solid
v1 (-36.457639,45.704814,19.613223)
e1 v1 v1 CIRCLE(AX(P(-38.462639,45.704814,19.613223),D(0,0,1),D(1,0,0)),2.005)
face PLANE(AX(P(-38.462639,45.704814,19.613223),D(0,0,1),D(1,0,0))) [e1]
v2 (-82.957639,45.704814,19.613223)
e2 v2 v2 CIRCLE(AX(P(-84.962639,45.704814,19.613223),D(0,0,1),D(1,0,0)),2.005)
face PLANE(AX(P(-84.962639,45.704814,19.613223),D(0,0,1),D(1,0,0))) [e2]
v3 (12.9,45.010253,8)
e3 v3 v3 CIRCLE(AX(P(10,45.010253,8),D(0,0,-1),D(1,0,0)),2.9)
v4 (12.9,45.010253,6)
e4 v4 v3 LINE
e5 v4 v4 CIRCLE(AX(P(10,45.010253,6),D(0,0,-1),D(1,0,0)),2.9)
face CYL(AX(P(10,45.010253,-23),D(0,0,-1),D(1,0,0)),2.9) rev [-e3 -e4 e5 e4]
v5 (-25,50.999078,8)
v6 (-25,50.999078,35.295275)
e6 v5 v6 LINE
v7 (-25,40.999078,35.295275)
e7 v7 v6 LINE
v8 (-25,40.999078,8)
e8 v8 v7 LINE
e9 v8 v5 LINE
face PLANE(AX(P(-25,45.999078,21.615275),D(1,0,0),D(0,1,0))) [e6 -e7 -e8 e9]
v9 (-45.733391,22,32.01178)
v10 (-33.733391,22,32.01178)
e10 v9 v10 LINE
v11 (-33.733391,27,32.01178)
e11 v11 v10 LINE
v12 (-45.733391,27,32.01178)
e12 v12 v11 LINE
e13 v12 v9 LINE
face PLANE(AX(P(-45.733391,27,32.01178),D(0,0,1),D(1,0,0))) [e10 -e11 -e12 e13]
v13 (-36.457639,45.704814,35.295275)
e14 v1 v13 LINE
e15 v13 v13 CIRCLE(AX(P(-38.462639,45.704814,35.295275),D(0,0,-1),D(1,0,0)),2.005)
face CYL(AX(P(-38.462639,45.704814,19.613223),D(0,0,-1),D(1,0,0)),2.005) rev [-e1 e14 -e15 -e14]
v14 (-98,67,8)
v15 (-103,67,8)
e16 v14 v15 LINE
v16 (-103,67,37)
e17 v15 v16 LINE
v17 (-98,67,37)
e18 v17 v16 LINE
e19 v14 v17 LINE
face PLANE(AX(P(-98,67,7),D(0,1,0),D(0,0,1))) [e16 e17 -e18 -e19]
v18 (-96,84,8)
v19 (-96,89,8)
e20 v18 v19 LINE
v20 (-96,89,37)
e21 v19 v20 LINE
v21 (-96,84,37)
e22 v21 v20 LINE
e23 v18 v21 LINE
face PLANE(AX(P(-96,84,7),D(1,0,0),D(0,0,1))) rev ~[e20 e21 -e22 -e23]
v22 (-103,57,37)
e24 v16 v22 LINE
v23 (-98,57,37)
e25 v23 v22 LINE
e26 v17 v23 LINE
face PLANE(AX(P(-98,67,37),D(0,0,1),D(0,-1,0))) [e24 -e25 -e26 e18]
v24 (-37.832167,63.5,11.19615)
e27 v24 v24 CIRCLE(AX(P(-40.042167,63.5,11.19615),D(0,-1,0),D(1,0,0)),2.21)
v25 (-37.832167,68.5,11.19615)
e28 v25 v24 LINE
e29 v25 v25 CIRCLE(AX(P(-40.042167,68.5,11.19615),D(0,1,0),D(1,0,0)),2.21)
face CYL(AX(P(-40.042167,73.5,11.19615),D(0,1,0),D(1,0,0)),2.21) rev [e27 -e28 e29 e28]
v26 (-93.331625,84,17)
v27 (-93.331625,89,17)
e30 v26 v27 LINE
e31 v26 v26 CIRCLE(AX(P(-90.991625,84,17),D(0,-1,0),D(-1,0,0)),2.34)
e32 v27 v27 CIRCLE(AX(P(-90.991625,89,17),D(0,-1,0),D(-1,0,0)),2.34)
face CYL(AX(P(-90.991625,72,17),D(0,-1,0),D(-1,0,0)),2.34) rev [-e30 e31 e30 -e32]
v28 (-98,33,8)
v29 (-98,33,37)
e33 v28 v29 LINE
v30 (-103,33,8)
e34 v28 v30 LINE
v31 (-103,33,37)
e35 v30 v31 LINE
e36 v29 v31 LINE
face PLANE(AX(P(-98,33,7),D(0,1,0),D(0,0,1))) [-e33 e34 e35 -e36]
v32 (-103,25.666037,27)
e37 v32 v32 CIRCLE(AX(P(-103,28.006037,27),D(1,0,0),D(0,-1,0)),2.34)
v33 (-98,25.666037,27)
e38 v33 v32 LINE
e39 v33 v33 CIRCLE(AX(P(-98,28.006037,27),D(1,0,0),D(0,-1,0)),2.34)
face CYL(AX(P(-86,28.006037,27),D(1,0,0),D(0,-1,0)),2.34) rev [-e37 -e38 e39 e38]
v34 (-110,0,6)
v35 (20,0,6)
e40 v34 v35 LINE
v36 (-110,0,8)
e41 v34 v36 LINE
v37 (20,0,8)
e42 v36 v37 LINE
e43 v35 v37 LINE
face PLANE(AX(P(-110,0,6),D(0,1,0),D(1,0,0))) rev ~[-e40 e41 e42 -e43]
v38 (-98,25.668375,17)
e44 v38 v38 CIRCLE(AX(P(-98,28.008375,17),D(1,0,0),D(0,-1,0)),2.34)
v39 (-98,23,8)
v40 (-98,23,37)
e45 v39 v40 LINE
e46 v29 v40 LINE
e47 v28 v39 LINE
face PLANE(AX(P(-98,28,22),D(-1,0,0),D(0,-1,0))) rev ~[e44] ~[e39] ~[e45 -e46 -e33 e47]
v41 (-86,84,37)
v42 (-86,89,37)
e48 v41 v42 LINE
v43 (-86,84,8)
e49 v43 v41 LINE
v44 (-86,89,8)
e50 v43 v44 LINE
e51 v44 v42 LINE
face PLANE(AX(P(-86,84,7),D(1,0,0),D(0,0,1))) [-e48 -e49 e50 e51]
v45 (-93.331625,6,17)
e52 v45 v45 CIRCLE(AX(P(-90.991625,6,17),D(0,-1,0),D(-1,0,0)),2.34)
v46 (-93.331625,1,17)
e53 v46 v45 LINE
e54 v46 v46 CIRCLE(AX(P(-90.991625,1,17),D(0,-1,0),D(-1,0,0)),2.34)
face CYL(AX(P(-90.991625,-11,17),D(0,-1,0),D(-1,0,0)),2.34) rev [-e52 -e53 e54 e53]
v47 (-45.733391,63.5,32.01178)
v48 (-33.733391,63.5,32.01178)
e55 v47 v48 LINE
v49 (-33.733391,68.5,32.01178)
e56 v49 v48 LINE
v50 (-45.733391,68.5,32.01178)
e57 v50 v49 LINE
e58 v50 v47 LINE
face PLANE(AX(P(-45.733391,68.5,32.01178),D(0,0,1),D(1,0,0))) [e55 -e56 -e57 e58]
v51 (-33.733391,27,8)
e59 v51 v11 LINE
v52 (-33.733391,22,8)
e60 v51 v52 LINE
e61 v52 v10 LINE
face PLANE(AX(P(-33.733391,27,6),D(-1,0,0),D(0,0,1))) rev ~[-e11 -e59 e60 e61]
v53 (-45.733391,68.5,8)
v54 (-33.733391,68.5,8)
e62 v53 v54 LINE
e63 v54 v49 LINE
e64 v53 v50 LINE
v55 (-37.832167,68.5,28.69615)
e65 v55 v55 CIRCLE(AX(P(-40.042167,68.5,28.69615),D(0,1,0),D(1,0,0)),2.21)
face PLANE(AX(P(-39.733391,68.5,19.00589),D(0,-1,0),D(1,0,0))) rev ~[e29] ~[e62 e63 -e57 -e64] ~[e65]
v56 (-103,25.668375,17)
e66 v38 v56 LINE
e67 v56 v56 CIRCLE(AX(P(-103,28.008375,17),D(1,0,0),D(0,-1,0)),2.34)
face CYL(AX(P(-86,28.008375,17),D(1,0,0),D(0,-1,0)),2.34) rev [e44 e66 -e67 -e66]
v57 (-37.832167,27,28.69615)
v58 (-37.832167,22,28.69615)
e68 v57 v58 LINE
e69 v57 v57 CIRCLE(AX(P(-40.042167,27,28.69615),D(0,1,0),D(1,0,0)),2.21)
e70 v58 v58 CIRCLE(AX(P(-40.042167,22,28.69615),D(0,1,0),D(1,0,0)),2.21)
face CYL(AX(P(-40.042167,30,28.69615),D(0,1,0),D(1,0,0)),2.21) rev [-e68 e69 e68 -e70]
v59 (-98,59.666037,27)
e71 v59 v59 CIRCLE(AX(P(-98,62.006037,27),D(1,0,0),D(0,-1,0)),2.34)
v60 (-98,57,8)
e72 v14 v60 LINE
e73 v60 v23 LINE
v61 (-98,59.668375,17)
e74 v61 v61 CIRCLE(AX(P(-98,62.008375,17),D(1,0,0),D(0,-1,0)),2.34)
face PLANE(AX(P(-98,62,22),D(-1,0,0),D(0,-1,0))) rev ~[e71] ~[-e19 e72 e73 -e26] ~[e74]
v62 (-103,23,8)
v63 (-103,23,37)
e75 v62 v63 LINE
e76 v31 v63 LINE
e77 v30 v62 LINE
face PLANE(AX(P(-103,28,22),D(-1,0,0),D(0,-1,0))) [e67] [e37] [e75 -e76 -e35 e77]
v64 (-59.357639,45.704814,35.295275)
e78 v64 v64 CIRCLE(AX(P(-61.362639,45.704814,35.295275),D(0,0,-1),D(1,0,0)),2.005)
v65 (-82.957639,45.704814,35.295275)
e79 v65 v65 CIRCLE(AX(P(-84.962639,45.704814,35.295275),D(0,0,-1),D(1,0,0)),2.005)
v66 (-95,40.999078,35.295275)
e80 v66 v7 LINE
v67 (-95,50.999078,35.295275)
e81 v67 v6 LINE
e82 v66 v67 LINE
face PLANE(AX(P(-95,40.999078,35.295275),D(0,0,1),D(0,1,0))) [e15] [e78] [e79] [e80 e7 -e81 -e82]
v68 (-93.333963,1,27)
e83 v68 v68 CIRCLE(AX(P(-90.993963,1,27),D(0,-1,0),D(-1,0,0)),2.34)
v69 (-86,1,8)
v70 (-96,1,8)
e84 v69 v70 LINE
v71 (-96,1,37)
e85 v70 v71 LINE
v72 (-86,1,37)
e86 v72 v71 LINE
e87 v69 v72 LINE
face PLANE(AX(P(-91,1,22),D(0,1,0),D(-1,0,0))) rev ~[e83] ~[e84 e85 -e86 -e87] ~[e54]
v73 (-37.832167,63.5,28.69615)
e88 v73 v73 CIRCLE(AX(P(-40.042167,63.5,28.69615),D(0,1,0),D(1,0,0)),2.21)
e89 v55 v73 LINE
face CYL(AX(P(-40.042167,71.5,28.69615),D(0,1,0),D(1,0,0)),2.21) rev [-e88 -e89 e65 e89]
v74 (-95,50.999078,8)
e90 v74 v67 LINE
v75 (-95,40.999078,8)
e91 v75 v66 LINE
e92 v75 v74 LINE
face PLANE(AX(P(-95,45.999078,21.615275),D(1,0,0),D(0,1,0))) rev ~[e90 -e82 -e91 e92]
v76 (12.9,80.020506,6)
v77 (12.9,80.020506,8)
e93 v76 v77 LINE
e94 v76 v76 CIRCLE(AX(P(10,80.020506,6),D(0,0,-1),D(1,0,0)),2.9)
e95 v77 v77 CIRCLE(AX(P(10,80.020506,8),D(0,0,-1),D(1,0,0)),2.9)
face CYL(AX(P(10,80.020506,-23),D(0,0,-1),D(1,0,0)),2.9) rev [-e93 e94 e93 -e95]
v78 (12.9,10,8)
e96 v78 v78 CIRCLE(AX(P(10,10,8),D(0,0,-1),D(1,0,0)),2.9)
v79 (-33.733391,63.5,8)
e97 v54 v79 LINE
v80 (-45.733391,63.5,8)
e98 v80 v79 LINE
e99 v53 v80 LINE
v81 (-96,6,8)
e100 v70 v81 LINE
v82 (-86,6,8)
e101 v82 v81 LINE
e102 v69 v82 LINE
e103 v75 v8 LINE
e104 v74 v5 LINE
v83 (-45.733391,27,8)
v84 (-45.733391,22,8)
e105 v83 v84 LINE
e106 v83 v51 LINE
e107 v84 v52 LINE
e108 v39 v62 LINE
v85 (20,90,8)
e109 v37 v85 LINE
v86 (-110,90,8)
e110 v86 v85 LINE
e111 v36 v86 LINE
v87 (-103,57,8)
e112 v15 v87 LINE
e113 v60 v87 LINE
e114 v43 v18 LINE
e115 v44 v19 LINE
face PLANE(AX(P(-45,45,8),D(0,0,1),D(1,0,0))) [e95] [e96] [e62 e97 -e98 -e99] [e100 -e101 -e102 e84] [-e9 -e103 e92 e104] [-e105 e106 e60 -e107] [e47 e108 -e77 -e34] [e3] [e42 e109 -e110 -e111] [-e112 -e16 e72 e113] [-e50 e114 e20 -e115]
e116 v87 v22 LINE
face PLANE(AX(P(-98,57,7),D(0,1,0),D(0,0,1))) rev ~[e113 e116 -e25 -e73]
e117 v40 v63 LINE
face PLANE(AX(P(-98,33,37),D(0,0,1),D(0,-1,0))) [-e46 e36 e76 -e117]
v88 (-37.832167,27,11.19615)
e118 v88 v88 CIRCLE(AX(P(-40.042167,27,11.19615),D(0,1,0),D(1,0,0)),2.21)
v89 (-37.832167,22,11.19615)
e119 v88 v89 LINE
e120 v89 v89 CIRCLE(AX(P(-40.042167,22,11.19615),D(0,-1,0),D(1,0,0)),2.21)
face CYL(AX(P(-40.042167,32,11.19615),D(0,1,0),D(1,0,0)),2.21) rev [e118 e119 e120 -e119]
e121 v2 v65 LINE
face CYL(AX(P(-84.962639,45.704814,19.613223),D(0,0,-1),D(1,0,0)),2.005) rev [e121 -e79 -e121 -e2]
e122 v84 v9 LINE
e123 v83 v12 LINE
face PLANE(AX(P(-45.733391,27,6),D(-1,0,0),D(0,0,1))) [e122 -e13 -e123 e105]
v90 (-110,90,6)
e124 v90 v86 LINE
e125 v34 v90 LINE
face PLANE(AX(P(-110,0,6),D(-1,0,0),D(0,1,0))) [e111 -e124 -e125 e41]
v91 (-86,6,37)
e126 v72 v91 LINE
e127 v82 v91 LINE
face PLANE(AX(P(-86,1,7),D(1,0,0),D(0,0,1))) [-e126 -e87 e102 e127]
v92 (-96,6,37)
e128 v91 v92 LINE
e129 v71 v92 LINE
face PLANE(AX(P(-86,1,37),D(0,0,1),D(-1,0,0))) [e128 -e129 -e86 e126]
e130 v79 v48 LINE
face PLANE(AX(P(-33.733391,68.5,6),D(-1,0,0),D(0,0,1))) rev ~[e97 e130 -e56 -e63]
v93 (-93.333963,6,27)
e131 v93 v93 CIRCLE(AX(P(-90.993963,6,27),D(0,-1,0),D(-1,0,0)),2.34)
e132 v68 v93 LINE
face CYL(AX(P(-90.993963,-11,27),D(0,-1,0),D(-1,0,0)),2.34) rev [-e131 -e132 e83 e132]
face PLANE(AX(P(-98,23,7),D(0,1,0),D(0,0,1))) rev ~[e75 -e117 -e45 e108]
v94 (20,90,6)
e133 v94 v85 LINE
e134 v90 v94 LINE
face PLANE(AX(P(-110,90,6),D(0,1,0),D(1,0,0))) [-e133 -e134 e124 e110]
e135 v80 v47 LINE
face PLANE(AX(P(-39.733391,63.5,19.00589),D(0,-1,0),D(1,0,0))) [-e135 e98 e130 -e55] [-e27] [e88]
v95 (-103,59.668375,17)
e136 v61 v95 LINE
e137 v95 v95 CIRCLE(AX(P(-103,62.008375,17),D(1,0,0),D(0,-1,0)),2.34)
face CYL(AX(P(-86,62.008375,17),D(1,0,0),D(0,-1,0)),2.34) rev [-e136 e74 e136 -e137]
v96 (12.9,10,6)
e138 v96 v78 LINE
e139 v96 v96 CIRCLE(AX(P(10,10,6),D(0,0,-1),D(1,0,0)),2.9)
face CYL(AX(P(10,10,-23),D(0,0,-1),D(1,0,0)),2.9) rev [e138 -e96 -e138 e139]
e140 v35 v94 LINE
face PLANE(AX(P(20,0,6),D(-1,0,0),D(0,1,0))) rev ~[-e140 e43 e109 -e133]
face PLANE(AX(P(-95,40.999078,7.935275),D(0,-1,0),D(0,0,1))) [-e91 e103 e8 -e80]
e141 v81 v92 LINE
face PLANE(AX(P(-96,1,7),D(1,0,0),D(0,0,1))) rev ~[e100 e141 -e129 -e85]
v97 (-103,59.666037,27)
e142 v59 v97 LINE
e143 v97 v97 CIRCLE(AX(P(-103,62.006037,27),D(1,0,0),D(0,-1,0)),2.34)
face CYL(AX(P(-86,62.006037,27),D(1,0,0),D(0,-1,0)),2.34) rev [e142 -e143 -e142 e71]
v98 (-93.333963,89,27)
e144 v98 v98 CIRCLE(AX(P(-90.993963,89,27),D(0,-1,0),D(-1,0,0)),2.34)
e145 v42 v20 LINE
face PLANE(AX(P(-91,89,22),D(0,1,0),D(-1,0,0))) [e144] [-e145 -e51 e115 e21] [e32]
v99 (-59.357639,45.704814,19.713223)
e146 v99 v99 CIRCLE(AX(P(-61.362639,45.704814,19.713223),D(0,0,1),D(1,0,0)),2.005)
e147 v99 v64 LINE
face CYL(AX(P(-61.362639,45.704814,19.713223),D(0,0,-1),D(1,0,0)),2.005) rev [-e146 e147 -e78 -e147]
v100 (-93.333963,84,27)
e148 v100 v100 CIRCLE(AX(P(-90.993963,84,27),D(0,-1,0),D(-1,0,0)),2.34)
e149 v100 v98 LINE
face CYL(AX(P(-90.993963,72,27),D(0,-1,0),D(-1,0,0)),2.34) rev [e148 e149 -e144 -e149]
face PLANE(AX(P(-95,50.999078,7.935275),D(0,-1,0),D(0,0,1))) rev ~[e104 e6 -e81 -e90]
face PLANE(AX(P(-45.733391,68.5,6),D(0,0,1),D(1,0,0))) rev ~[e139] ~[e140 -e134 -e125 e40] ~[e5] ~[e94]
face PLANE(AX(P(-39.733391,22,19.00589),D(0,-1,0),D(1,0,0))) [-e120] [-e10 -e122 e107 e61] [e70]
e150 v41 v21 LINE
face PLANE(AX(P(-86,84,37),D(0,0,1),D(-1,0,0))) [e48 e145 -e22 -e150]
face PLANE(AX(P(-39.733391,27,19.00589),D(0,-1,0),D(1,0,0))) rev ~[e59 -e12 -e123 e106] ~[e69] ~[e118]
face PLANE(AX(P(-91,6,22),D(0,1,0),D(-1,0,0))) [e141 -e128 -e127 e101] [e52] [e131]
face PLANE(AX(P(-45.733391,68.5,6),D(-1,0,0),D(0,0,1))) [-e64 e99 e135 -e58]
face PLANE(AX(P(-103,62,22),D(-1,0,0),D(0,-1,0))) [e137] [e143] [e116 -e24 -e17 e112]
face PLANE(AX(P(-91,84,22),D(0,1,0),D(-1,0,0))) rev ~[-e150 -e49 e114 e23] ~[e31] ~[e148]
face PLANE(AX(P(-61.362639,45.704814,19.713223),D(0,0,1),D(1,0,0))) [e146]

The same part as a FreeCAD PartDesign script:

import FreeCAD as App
import Part
import Sketcher
from FreeCAD import Vector


def add_polygon(sketch, points):
    """Adds a closed chain of lines whose ends are joined by coincident constraints."""
    first, n = sketch.GeometryCount, len(points)
    for a, b in zip(points, points[1:] + points[:1]):
        sketch.addGeometry(Part.LineSegment(App.Vector(*a, 0), App.Vector(*b, 0)), False)
    for i in range(n):
        sketch.addConstraint(Sketcher.Constraint("Coincident", first + i, 2, first + (i + 1) % n, 1))

doc = App.newDocument("Part")
params = doc.addObject("Spreadsheet::Sheet", "Params")
for row, (alias, value) in enumerate([
    ("sketch1_diameter", "4.68 mm"),
    ("pad1_length", "20 mm"),
    ("sketch2_width", "10 mm"),
    ("sketch2_height", "30 mm"),
    ("pad2_length", "5 mm"),
    ("sketch3_diameter", "4.68 mm"),
    ("pad3_length", "20 mm"),
    ("sketch4_width", "10 mm"),
    ("sketch4_height", "30 mm"),
    ("pad4_length", "5 mm"),
    ("sketch5_diameter", "4.42 mm"),
    ("pad5_length", "10 mm"),
    ("sketch6_diameter", "4.42 mm"),
    ("pad6_length", "10 mm"),
    ("sketch7_width", "12 mm"),
    ("pad7_length", "5 mm"),
    ("sketch8_diameter", "4.42 mm"),
    ("pad8_length", "10 mm"),
    ("sketch9_diameter", "4.42 mm"),
    ("pad9_length", "10 mm"),
    ("sketch10_width", "12 mm"),
    ("pad10_length", "5 mm"),
    ("sketch11_diameter", "4.68 mm"),
    ("pad11_length", "20 mm"),
    ("sketch12_width", "10 mm"),
    ("sketch12_height", "30 mm"),
    ("pad12_length", "5 mm"),
    ("sketch13_diameter", "4.68 mm"),
    ("pad13_length", "20 mm"),
    ("sketch14_width", "10 mm"),
    ("sketch14_height", "30 mm"),
    ("pad14_length", "5 mm"),
    ("sketch15_diameter", "4.01 mm"),
    ("pad15_length", "20 mm"),
    ("sketch16_diameter", "4.01 mm"),
    ("pad16_length", "20 mm"),
    ("sketch17_diameter", "4.01 mm"),
    ("pad17_length", "20 mm"),
    ("sketch18_width", "10 mm"),
    ("sketch18_height", "27.36 mm"),
    ("pad18_length", "70 mm"),
    ("sketch19_diameter", "5.8 mm"),
    ("pad19_length", "50 mm"),
    ("sketch20_width", "130 mm"),
    ("sketch20_height", "90 mm"),
    ("pad20_length", "2 mm"),
], start=1):
    params.set(f"A{row}", alias)
    params.set(f"B{row}", "=" + value)
    params.setAlias(f"B{row}", alias)

body = doc.addObject("PartDesign::Body", "Body")
body.AllowCompound = True

# Sketch on YZ plane
sketch1 = body.newObject("Sketcher::SketchObject", "Sketch")
sketch1.AttachmentSupport = (doc.getObject("YZ_Plane"), [""])
sketch1.MapMode = "FlatFace"
sketch1.AttachmentOffset = App.Placement(Vector(0, 0, -101), App.Rotation())
sketch1.addGeometry([
    Part.Circle(Vector(28.006037, 30, 0), Vector(0, 0, 1), 2.34),
    Part.Circle(Vector(28.008375, 20, 0), Vector(0, 0, 1), 2.34),
], False)
sketch1.addConstraint([
    Sketcher.Constraint("Equal", 0, 1),
    Sketcher.Constraint("Diameter", 0, 4.68),
    Sketcher.Constraint("DistanceY", -1, 1, 0, 3, 30.0),
    Sketcher.Constraint("DistanceY", -1, 1, 1, 3, 20.0),
    Sketcher.Constraint("DistanceX", 0, 3, 1, 3, 0.002338),
    Sketcher.Constraint("DistanceX", -1, 1, 0, 3, 28.006037),
])
sketch1.setExpression("Constraints[1]", "Params.sketch1_diameter")
pad1 = body.newObject("PartDesign::Pad", "Pad")
pad1.Profile = sketch1
pad1.setExpression("Length", "Params.pad1_length")
pad1.Reversed = True
body2 = doc.addObject("PartDesign::Body", "Body001")
body2.AllowCompound = True
doc.recompute()

body.Placement = App.Placement(Vector(17, 0, 0), App.Rotation(Vector(0, 0, 1), 0))
boolean = body2.newObject("PartDesign::Boolean", "Boolean")
boolean.Type = "Fuse"
boolean.addObjects([body])
body3 = doc.addObject("PartDesign::Body", "Body002")

# Sketch on XZ plane
sketch2 = body3.newObject("Sketcher::SketchObject", "Sketch001")
sketch2.AttachmentSupport = (doc.getObject("XZ_Plane002"), [""])
sketch2.MapMode = "FlatFace"
add_polygon(sketch2, [(-140, 40), (-140, 10), (-130, 10), (-130, 40)])  # lines 0-3
sketch2.addConstraint([
    Sketcher.Constraint("Vertical", 0),
    Sketcher.Constraint("Horizontal", 1),
    Sketcher.Constraint("Vertical", 2),
    Sketcher.Constraint("Horizontal", 3),
    Sketcher.Constraint("DistanceX", 1, 1, 1, 2, 10.0),
    Sketcher.Constraint("DistanceY", 0, 2, 0, 1, 30.0),
    Sketcher.Constraint("DistanceX", 0, 2, -1, 1, 140.0),
    Sketcher.Constraint("DistanceY", -1, 1, 0, 2, 10.0),
])
sketch2.setExpression("Constraints[8]", "Params.sketch2_width")
sketch2.setExpression("Constraints[9]", "Params.sketch2_height")
pad2 = body3.newObject("PartDesign::Pad", "Pad001")
pad2.Profile = sketch2
pad2.setExpression("Length", "Params.pad2_length")
body4 = doc.addObject("PartDesign::Body", "Body003")
doc.recompute()

body3.Placement = App.Placement(Vector(-96, -107, 0), App.Rotation(Vector(0, 0, -1), 90))
boolean2 = body4.newObject("PartDesign::Boolean", "Boolean001")
boolean2.Type = "Fuse"
boolean2.addObjects([body3])
doc.recompute()

boolean3 = body4.newObject("PartDesign::Boolean", "Boolean002")
boolean3.Type = "Cut"
boolean3.addObjects([body2])
body5 = doc.addObject("PartDesign::Body", "Body004")
doc.recompute()

body4.Placement = App.Placement(Vector(-119, -12, -3), App.Rotation(Vector(0, 0, -1), 90))
boolean4 = body5.newObject("PartDesign::Boolean", "Boolean003")
boolean4.Type = "Fuse"
boolean4.addObjects([body4])
body6 = doc.addObject("PartDesign::Body", "Body005")
body6.AllowCompound = True

# Sketch on YZ plane
sketch3 = body6.newObject("Sketcher::SketchObject", "Sketch002")
sketch3.AttachmentSupport = (doc.getObject("YZ_Plane005"), [""])
sketch3.MapMode = "FlatFace"
sketch3.AttachmentOffset = App.Placement(Vector(0, 0, -101), App.Rotation())
sketch3.addGeometry([
    Part.Circle(Vector(28.006037, 30, 0), Vector(0, 0, 1), 2.34),
    Part.Circle(Vector(28.008375, 20, 0), Vector(0, 0, 1), 2.34),
], False)
sketch3.addConstraint([
    Sketcher.Constraint("Equal", 0, 1),
    Sketcher.Constraint("Diameter", 0, 4.68),
    Sketcher.Constraint("DistanceY", -1, 1, 0, 3, 30.0),
    Sketcher.Constraint("DistanceY", -1, 1, 1, 3, 20.0),
    Sketcher.Constraint("DistanceX", 0, 3, 1, 3, 0.002338),
    Sketcher.Constraint("DistanceX", -1, 1, 0, 3, 28.006037),
])
sketch3.setExpression("Constraints[1]", "Params.sketch3_diameter")
pad3 = body6.newObject("PartDesign::Pad", "Pad002")
pad3.Profile = sketch3
pad3.setExpression("Length", "Params.pad3_length")
pad3.Reversed = True
body7 = doc.addObject("PartDesign::Body", "Body006")
body7.AllowCompound = True
doc.recompute()

body6.Placement = App.Placement(Vector(17, 0, 0), App.Rotation(Vector(0, 0, 1), 0))
boolean5 = body7.newObject("PartDesign::Boolean", "Boolean004")
boolean5.Type = "Fuse"
boolean5.addObjects([body6])
body8 = doc.addObject("PartDesign::Body", "Body007")

# Sketch on XZ plane
sketch4 = body8.newObject("Sketcher::SketchObject", "Sketch003")
sketch4.AttachmentSupport = (doc.getObject("XZ_Plane007"), [""])
sketch4.MapMode = "FlatFace"
add_polygon(sketch4, [(-140, 40), (-140, 10), (-130, 10), (-130, 40)])  # lines 0-3
sketch4.addConstraint([
    Sketcher.Constraint("Vertical", 0),
    Sketcher.Constraint("Horizontal", 1),
    Sketcher.Constraint("Vertical", 2),
    Sketcher.Constraint("Horizontal", 3),
    Sketcher.Constraint("DistanceX", 1, 1, 1, 2, 10.0),
    Sketcher.Constraint("DistanceY", 0, 2, 0, 1, 30.0),
    Sketcher.Constraint("DistanceX", 0, 2, -1, 1, 140.0),
    Sketcher.Constraint("DistanceY", -1, 1, 0, 2, 10.0),
])
sketch4.setExpression("Constraints[8]", "Params.sketch4_width")
sketch4.setExpression("Constraints[9]", "Params.sketch4_height")
pad4 = body8.newObject("PartDesign::Pad", "Pad003")
pad4.Profile = sketch4
pad4.setExpression("Length", "Params.pad4_length")
body9 = doc.addObject("PartDesign::Body", "Body008")
doc.recompute()

body8.Placement = App.Placement(Vector(-96, -107, 0), App.Rotation(Vector(0, 0, -1), 90))
boolean6 = body9.newObject("PartDesign::Boolean", "Boolean005")
boolean6.Type = "Fuse"
boolean6.addObjects([body8])
doc.recompute()

boolean7 = body9.newObject("PartDesign::Boolean", "Boolean006")
boolean7.Type = "Cut"
boolean7.addObjects([body7])
body10 = doc.addObject("PartDesign::Body", "Body009")
doc.recompute()

body9.Placement = App.Placement(Vector(-2, 34, -3), App.Rotation(Vector(0, 0, 1), 0))
boolean8 = body10.newObject("PartDesign::Boolean", "Boolean007")
boolean8.Type = "Fuse"
boolean8.addObjects([body9])
body11 = doc.addObject("PartDesign::Body", "Body010")

# Sketch on XZ plane
sketch5 = body11.newObject("Sketcher::SketchObject", "Sketch004")
sketch5.AttachmentSupport = (doc.getObject("XZ_Plane010"), [""])
sketch5.MapMode = "FlatFace"
sketch5.addGeometry(Part.Circle(Vector(-30.242167, 20.01615, 0), Vector(0, 0, 1), 2.21), False)
sketch5.addConstraint([
    Sketcher.Constraint("Diameter", 0, 4.42),
    Sketcher.Constraint("DistanceY", -1, 1, 0, 3, 20.01615),
    Sketcher.Constraint("DistanceX", 0, 3, -1, 1, 30.242167),
])
sketch5.setExpression("Constraints[0]", "Params.sketch5_diameter")
pad5 = body11.newObject("PartDesign::Pad", "Pad004")
pad5.Profile = sketch5
pad5.setExpression("Length", "Params.pad5_length")
body12 = doc.addObject("PartDesign::Body", "Body011")
doc.recompute()

body11.Placement = App.Placement(Vector(-9.8, 5, -14.82), App.Rotation(Vector(0, 0, 1), 0))
boolean9 = body12.newObject("PartDesign::Boolean", "Boolean008")
boolean9.Type = "Fuse"
boolean9.addObjects([body11])
body13 = doc.addObject("PartDesign::Body", "Body012")

# Sketch on XZ plane
sketch6 = body13.newObject("Sketcher::SketchObject", "Sketch005")
sketch6.AttachmentSupport = (doc.getObject("XZ_Plane012"), [""])
sketch6.MapMode = "FlatFace"
sketch6.addGeometry(Part.Circle(Vector(-30.242167, 20.01615, 0), Vector(0, 0, 1), 2.21), False)
sketch6.addConstraint([
    Sketcher.Constraint("Diameter", 0, 4.42),
    Sketcher.Constraint("DistanceY", -1, 1, 0, 3, 20.01615),
    Sketcher.Constraint("DistanceX", 0, 3, -1, 1, 30.242167),
])
sketch6.setExpression("Constraints[0]", "Params.sketch6_diameter")
pad6 = body13.newObject("PartDesign::Pad", "Pad005")
pad6.Profile = sketch6
pad6.setExpression("Length", "Params.pad6_length")
body14 = doc.addObject("PartDesign::Body", "Body013")
doc.recompute()

body13.Placement = App.Placement(Vector(-9.8, 3, 2.68), App.Rotation(Vector(0, 0, 1), 0))
boolean10 = body14.newObject("PartDesign::Boolean", "Boolean009")
boolean10.Type = "Fuse"
boolean10.addObjects([body13])
body15 = doc.addObject("PartDesign::Body", "Body014")

# Sketch on XZ plane
sketch7 = body15.newObject("Sketcher::SketchObject", "Sketch006")
sketch7.AttachmentSupport = (doc.getObject("XZ_Plane014"), [""])
sketch7.MapMode = "FlatFace"
add_polygon(sketch7, [(-45.733391, 26.01178), (-45.733391, 0), (-33.733391, 0), (-33.733391, 26.01178)])  # lines 0-3
sketch7.addConstraint([
    Sketcher.Constraint("Vertical", 0),
    Sketcher.Constraint("Horizontal", 1),
    Sketcher.Constraint("Vertical", 2),
    Sketcher.Constraint("Horizontal", 3),
    Sketcher.Constraint("PointOnObject", 0, 2, -1),
    Sketcher.Constraint("DistanceX", 1, 1, 1, 2, 12.0),
    Sketcher.Constraint("DistanceY", 0, 2, 0, 1, 26.01178),
    Sketcher.Constraint("DistanceX", 0, 2, -1, 1, 45.733391),
])
sketch7.setExpression("Constraints[9]", "Params.sketch7_width")
pad7 = body15.newObject("PartDesign::Pad", "Pad006")
pad7.Profile = sketch7
pad7.setExpression("Length", "Params.pad7_length")
doc.recompute()

boolean11 = body15.newObject("PartDesign::Boolean", "Boolean010")
boolean11.Type = "Cut"
boolean11.addObjects([body14])
doc.recompute()

boolean12 = body15.newObject("PartDesign::Boolean", "Boolean011")
boolean12.Type = "Cut"
boolean12.addObjects([body12])
body16 = doc.addObject("PartDesign::Body", "Body015")
doc.recompute()

body15.Placement = App.Placement(Vector(0, 68.5, 6), App.Rotation(Vector(0, 0, 1), 0))
boolean13 = body16.newObject("PartDesign::Boolean", "Boolean012")
boolean13.Type = "Fuse"
boolean13.addObjects([body15])
body17 = doc.addObject("PartDesign::Body", "Body016")

# Sketch on XZ plane
sketch8 = body17.newObject("Sketcher::SketchObject", "Sketch007")
sketch8.AttachmentSupport = (doc.getObject("XZ_Plane016"), [""])
sketch8.MapMode = "FlatFace"
sketch8.addGeometry(Part.Circle(Vector(-30.242167, 20.01615, 0), Vector(0, 0, 1), 2.21), False)
sketch8.addConstraint([
    Sketcher.Constraint("Diameter", 0, 4.42),
    Sketcher.Constraint("DistanceY", -1, 1, 0, 3, 20.01615),
    Sketcher.Constraint("DistanceX", 0, 3, -1, 1, 30.242167),
])
sketch8.setExpression("Constraints[0]", "Params.sketch8_diameter")
pad8 = body17.newObject("PartDesign::Pad", "Pad007")
pad8.Profile = sketch8
pad8.setExpression("Length", "Params.pad8_length")
body18 = doc.addObject("PartDesign::Body", "Body017")
doc.recompute()

body17.Placement = App.Placement(Vector(-9.8, 5, -14.82), App.Rotation(Vector(0, 0, 1), 0))
boolean14 = body18.newObject("PartDesign::Boolean", "Boolean013")
boolean14.Type = "Fuse"
boolean14.addObjects([body17])
body19 = doc.addObject("PartDesign::Body", "Body018")

# Sketch on XZ plane
sketch9 = body19.newObject("Sketcher::SketchObject", "Sketch008")
sketch9.AttachmentSupport = (doc.getObject("XZ_Plane018"), [""])
sketch9.MapMode = "FlatFace"
sketch9.addGeometry(Part.Circle(Vector(-30.242167, 20.01615, 0), Vector(0, 0, 1), 2.21), False)
sketch9.addConstraint([
    Sketcher.Constraint("Diameter", 0, 4.42),
    Sketcher.Constraint("DistanceY", -1, 1, 0, 3, 20.01615),
    Sketcher.Constraint("DistanceX", 0, 3, -1, 1, 30.242167),
])
sketch9.setExpression("Constraints[0]", "Params.sketch9_diameter")
pad9 = body19.newObject("PartDesign::Pad", "Pad008")
pad9.Profile = sketch9
pad9.setExpression("Length", "Params.pad9_length")
body20 = doc.addObject("PartDesign::Body", "Body019")
doc.recompute()

body19.Placement = App.Placement(Vector(-9.8, 3, 2.68), App.Rotation(Vector(0, 0, 1), 0))
boolean15 = body20.newObject("PartDesign::Boolean", "Boolean014")
boolean15.Type = "Fuse"
boolean15.addObjects([body19])
body21 = doc.addObject("PartDesign::Body", "Body020")

# Sketch on XZ plane
sketch10 = body21.newObject("Sketcher::SketchObject", "Sketch009")
sketch10.AttachmentSupport = (doc.getObject("XZ_Plane020"), [""])
sketch10.MapMode = "FlatFace"
add_polygon(sketch10, [(-45.733391, 26.01178), (-45.733391, 0), (-33.733391, 0), (-33.733391, 26.01178)])  # lines 0-3
sketch10.addConstraint([
    Sketcher.Constraint("Vertical", 0),
    Sketcher.Constraint("Horizontal", 1),
    Sketcher.Constraint("Vertical", 2),
    Sketcher.Constraint("Horizontal", 3),
    Sketcher.Constraint("PointOnObject", 0, 2, -1),
    Sketcher.Constraint("DistanceX", 1, 1, 1, 2, 12.0),
    Sketcher.Constraint("DistanceY", 0, 2, 0, 1, 26.01178),
    Sketcher.Constraint("DistanceX", 0, 2, -1, 1, 45.733391),
])
sketch10.setExpression("Constraints[9]", "Params.sketch10_width")
pad10 = body21.newObject("PartDesign::Pad", "Pad009")
pad10.Profile = sketch10
pad10.setExpression("Length", "Params.pad10_length")
doc.recompute()

boolean16 = body21.newObject("PartDesign::Boolean", "Boolean015")
boolean16.Type = "Cut"
boolean16.addObjects([body20])
doc.recompute()

boolean17 = body21.newObject("PartDesign::Boolean", "Boolean016")
boolean17.Type = "Cut"
boolean17.addObjects([body18])
body22 = doc.addObject("PartDesign::Body", "Body021")
doc.recompute()

body21.Placement = App.Placement(Vector(0, 27, 6), App.Rotation(Vector(0, 0, 1), 0))
boolean18 = body22.newObject("PartDesign::Boolean", "Boolean017")
boolean18.Type = "Fuse"
boolean18.addObjects([body21])
body23 = doc.addObject("PartDesign::Body", "Body022")
body23.AllowCompound = True

# Sketch on YZ plane
sketch11 = body23.newObject("Sketcher::SketchObject", "Sketch010")
sketch11.AttachmentSupport = (doc.getObject("YZ_Plane022"), [""])
sketch11.MapMode = "FlatFace"
sketch11.AttachmentOffset = App.Placement(Vector(0, 0, -101), App.Rotation())
sketch11.addGeometry([
    Part.Circle(Vector(28.006037, 30, 0), Vector(0, 0, 1), 2.34),
    Part.Circle(Vector(28.008375, 20, 0), Vector(0, 0, 1), 2.34),
], False)
sketch11.addConstraint([
    Sketcher.Constraint("Equal", 0, 1),
    Sketcher.Constraint("Diameter", 0, 4.68),
    Sketcher.Constraint("DistanceY", -1, 1, 0, 3, 30.0),
    Sketcher.Constraint("DistanceY", -1, 1, 1, 3, 20.0),
    Sketcher.Constraint("DistanceX", 0, 3, 1, 3, 0.002338),
    Sketcher.Constraint("DistanceX", -1, 1, 0, 3, 28.006037),
])
sketch11.setExpression("Constraints[1]", "Params.sketch11_diameter")
pad11 = body23.newObject("PartDesign::Pad", "Pad010")
pad11.Profile = sketch11
pad11.setExpression("Length", "Params.pad11_length")
pad11.Reversed = True
body24 = doc.addObject("PartDesign::Body", "Body023")
body24.AllowCompound = True
doc.recompute()

body23.Placement = App.Placement(Vector(17, 0, 0), App.Rotation(Vector(0, 0, 1), 0))
boolean19 = body24.newObject("PartDesign::Boolean", "Boolean018")
boolean19.Type = "Fuse"
boolean19.addObjects([body23])
body25 = doc.addObject("PartDesign::Body", "Body024")

# Sketch on XZ plane
sketch12 = body25.newObject("Sketcher::SketchObject", "Sketch011")
sketch12.AttachmentSupport = (doc.getObject("XZ_Plane024"), [""])
sketch12.MapMode = "FlatFace"
add_polygon(sketch12, [(-140, 40), (-140, 10), (-130, 10), (-130, 40)])  # lines 0-3
sketch12.addConstraint([
    Sketcher.Constraint("Vertical", 0),
    Sketcher.Constraint("Horizontal", 1),
    Sketcher.Constraint("Vertical", 2),
    Sketcher.Constraint("Horizontal", 3),
    Sketcher.Constraint("DistanceX", 1, 1, 1, 2, 10.0),
    Sketcher.Constraint("DistanceY", 0, 2, 0, 1, 30.0),
    Sketcher.Constraint("DistanceX", 0, 2, -1, 1, 140.0),
    Sketcher.Constraint("DistanceY", -1, 1, 0, 2, 10.0),
])
sketch12.setExpression("Constraints[8]", "Params.sketch12_width")
sketch12.setExpression("Constraints[9]", "Params.sketch12_height")
pad12 = body25.newObject("PartDesign::Pad", "Pad011")
pad12.Profile = sketch12
pad12.setExpression("Length", "Params.pad12_length")
body26 = doc.addObject("PartDesign::Body", "Body025")
doc.recompute()

body25.Placement = App.Placement(Vector(-96, -107, 0), App.Rotation(Vector(0, 0, -1), 90))
boolean20 = body26.newObject("PartDesign::Boolean", "Boolean019")
boolean20.Type = "Fuse"
boolean20.addObjects([body25])
doc.recompute()

boolean21 = body26.newObject("PartDesign::Boolean", "Boolean020")
boolean21.Type = "Cut"
boolean21.addObjects([body24])
body27 = doc.addObject("PartDesign::Body", "Body026")
doc.recompute()

body26.Placement = App.Placement(Vector(-119, -95, -3), App.Rotation(Vector(0, 0, -1), 90))
boolean22 = body27.newObject("PartDesign::Boolean", "Boolean021")
boolean22.Type = "Fuse"
boolean22.addObjects([body26])
body28 = doc.addObject("PartDesign::Body", "Body027")
body28.AllowCompound = True

# Sketch on YZ plane
sketch13 = body28.newObject("Sketcher::SketchObject", "Sketch012")
sketch13.AttachmentSupport = (doc.getObject("YZ_Plane027"), [""])
sketch13.MapMode = "FlatFace"
sketch13.AttachmentOffset = App.Placement(Vector(0, 0, -101), App.Rotation())
sketch13.addGeometry([
    Part.Circle(Vector(28.006037, 30, 0), Vector(0, 0, 1), 2.34),
    Part.Circle(Vector(28.008375, 20, 0), Vector(0, 0, 1), 2.34),
], False)
sketch13.addConstraint([
    Sketcher.Constraint("Equal", 0, 1),
    Sketcher.Constraint("Diameter", 0, 4.68),
    Sketcher.Constraint("DistanceY", -1, 1, 0, 3, 30.0),
    Sketcher.Constraint("DistanceY", -1, 1, 1, 3, 20.0),
    Sketcher.Constraint("DistanceX", 0, 3, 1, 3, 0.002338),
    Sketcher.Constraint("DistanceX", -1, 1, 0, 3, 28.006037),
])
sketch13.setExpression("Constraints[1]", "Params.sketch13_diameter")
pad13 = body28.newObject("PartDesign::Pad", "Pad012")
pad13.Profile = sketch13
pad13.setExpression("Length", "Params.pad13_length")
pad13.Reversed = True
body29 = doc.addObject("PartDesign::Body", "Body028")
body29.AllowCompound = True
doc.recompute()

body28.Placement = App.Placement(Vector(17, 0, 0), App.Rotation(Vector(0, 0, 1), 0))
boolean23 = body29.newObject("PartDesign::Boolean", "Boolean022")
boolean23.Type = "Fuse"
boolean23.addObjects([body28])
body30 = doc.addObject("PartDesign::Body", "Body029")

# Sketch on XZ plane
sketch14 = body30.newObject("Sketcher::SketchObject", "Sketch013")
sketch14.AttachmentSupport = (doc.getObject("XZ_Plane029"), [""])
sketch14.MapMode = "FlatFace"
add_polygon(sketch14, [(-140, 40), (-140, 10), (-130, 10), (-130, 40)])  # lines 0-3
sketch14.addConstraint([
    Sketcher.Constraint("Vertical", 0),
    Sketcher.Constraint("Horizontal", 1),
    Sketcher.Constraint("Vertical", 2),
    Sketcher.Constraint("Horizontal", 3),
    Sketcher.Constraint("DistanceX", 1, 1, 1, 2, 10.0),
    Sketcher.Constraint("DistanceY", 0, 2, 0, 1, 30.0),
    Sketcher.Constraint("DistanceX", 0, 2, -1, 1, 140.0),
    Sketcher.Constraint("DistanceY", -1, 1, 0, 2, 10.0),
])
sketch14.setExpression("Constraints[8]", "Params.sketch14_width")
sketch14.setExpression("Constraints[9]", "Params.sketch14_height")
pad14 = body30.newObject("PartDesign::Pad", "Pad013")
pad14.Profile = sketch14
pad14.setExpression("Length", "Params.pad14_length")
body31 = doc.addObject("PartDesign::Body", "Body030")
doc.recompute()

body30.Placement = App.Placement(Vector(-96, -107, 0), App.Rotation(Vector(0, 0, -1), 90))
boolean24 = body31.newObject("PartDesign::Boolean", "Boolean023")
boolean24.Type = "Fuse"
boolean24.addObjects([body30])
doc.recompute()

boolean25 = body31.newObject("PartDesign::Boolean", "Boolean024")
boolean25.Type = "Cut"
boolean25.addObjects([body29])
body32 = doc.addObject("PartDesign::Body", "Body031")
doc.recompute()

body31.Placement = App.Placement(Vector(-2, 0, -3), App.Rotation(Vector(0, 0, 1), 0))
boolean26 = body32.newObject("PartDesign::Boolean", "Boolean025")
boolean26.Type = "Fuse"
boolean26.addObjects([body31])
body33 = doc.addObject("PartDesign::Body", "Body032")

# Sketch on XY plane
sketch15 = body33.newObject("Sketcher::SketchObject", "Sketch014")
sketch15.AttachmentSupport = (doc.getObject("XY_Plane032"), [""])
sketch15.MapMode = "FlatFace"
sketch15.AttachmentOffset = App.Placement(Vector(0, 0, 45.913223), App.Rotation())
sketch15.addGeometry(Part.Circle(Vector(-84.962639, 67.504814, 0), Vector(0, 0, 1), 2.005), False)
sketch15.addConstraint([
    Sketcher.Constraint("Diameter", 0, 4.01),
    Sketcher.Constraint("DistanceX", 0, 3, -1, 1, 84.962639),
    Sketcher.Constraint("DistanceY", -1, 1, 0, 3, 67.504814),
])
sketch15.setExpression("Constraints[0]", "Params.sketch15_diameter")
pad15 = body33.newObject("PartDesign::Pad", "Pad014")
pad15.Profile = sketch15
pad15.setExpression("Length", "Params.pad15_length")
body34 = doc.addObject("PartDesign::Body", "Body033")
doc.recompute()

body33.Placement = App.Placement(Vector(46.5, -21.8, -26), App.Rotation(Vector(0, 0, 1), 0))
boolean27 = body34.newObject("PartDesign::Boolean", "Boolean026")
boolean27.Type = "Fuse"
boolean27.addObjects([body33])
body35 = doc.addObject("PartDesign::Body", "Body034")

# Sketch on XY plane
sketch16 = body35.newObject("Sketcher::SketchObject", "Sketch015")
sketch16.AttachmentSupport = (doc.getObject("XY_Plane034"), [""])
sketch16.MapMode = "FlatFace"
sketch16.AttachmentOffset = App.Placement(Vector(0, 0, 45.913223), App.Rotation())
sketch16.addGeometry(Part.Circle(Vector(-84.962639, 67.504814, 0), Vector(0, 0, 1), 2.005), False)
sketch16.addConstraint([
    Sketcher.Constraint("Diameter", 0, 4.01),
    Sketcher.Constraint("DistanceX", 0, 3, -1, 1, 84.962639),
    Sketcher.Constraint("DistanceY", -1, 1, 0, 3, 67.504814),
])
sketch16.setExpression("Constraints[0]", "Params.sketch16_diameter")
pad16 = body35.newObject("PartDesign::Pad", "Pad015")
pad16.Profile = sketch16
pad16.setExpression("Length", "Params.pad16_length")
body36 = doc.addObject("PartDesign::Body", "Body035")
doc.recompute()

body35.Placement = App.Placement(Vector(23.6, -21.8, -25.9), App.Rotation(Vector(0, 0, 1), 0))
boolean28 = body36.newObject("PartDesign::Boolean", "Boolean027")
boolean28.Type = "Fuse"
boolean28.addObjects([body35])
body37 = doc.addObject("PartDesign::Body", "Body036")

# Sketch on XY plane
sketch17 = body37.newObject("Sketcher::SketchObject", "Sketch016")
sketch17.AttachmentSupport = (doc.getObject("XY_Plane036"), [""])
sketch17.MapMode = "FlatFace"
sketch17.AttachmentOffset = App.Placement(Vector(0, 0, 45.913223), App.Rotation())
sketch17.addGeometry(Part.Circle(Vector(-84.962639, 67.504814, 0), Vector(0, 0, 1), 2.005), False)
sketch17.addConstraint([
    Sketcher.Constraint("Diameter", 0, 4.01),
    Sketcher.Constraint("DistanceX", 0, 3, -1, 1, 84.962639),
    Sketcher.Constraint("DistanceY", -1, 1, 0, 3, 67.504814),
])
sketch17.setExpression("Constraints[0]", "Params.sketch17_diameter")
pad17 = body37.newObject("PartDesign::Pad", "Pad016")
pad17.Profile = sketch17
pad17.setExpression("Length", "Params.pad17_length")
body38 = doc.addObject("PartDesign::Body", "Body037")
doc.recompute()

body37.Placement = App.Placement(Vector(0, -21.8, -26), App.Rotation(Vector(0, 0, 1), 0))
boolean29 = body38.newObject("PartDesign::Boolean", "Boolean028")
boolean29.Type = "Fuse"
boolean29.addObjects([body37])
body39 = doc.addObject("PartDesign::Body", "Body038")

# Sketch on YZ plane
sketch18 = body39.newObject("Sketcher::SketchObject", "Sketch017")
sketch18.AttachmentSupport = (doc.getObject("YZ_Plane038"), [""])
sketch18.MapMode = "FlatFace"
add_polygon(sketch18, [(-15.400922, 35.895275), (-15.400922, 8.535275), (-5.400922, 8.535275), (-5.400922, 35.895275)])  # lines 0-3
sketch18.addConstraint([
    Sketcher.Constraint("Vertical", 0),
    Sketcher.Constraint("Horizontal", 1),
    Sketcher.Constraint("Vertical", 2),
    Sketcher.Constraint("Horizontal", 3),
    Sketcher.Constraint("DistanceX", 1, 1, 1, 2, 10.0),
    Sketcher.Constraint("DistanceY", 0, 2, 0, 1, 27.36),
    Sketcher.Constraint("DistanceX", 1, 2, -1, 1, 5.400922),
    Sketcher.Constraint("DistanceY", -1, 1, 0, 2, 8.535275),
])
sketch18.setExpression("Constraints[8]", "Params.sketch18_width")
sketch18.setExpression("Constraints[9]", "Params.sketch18_height")
pad18 = body39.newObject("PartDesign::Pad", "Pad017")
pad18.Profile = sketch18
pad18.setExpression("Length", "Params.pad18_length")
body40 = doc.addObject("PartDesign::Body", "Body039")
doc.recompute()

body39.Placement = App.Placement(Vector(-95, 56.4, -0.3), App.Rotation(Vector(0, 0, 1), 0))
boolean30 = body40.newObject("PartDesign::Boolean", "Boolean029")
boolean30.Type = "Fuse"
boolean30.addObjects([body39])
doc.recompute()

boolean31 = body40.newObject("PartDesign::Boolean", "Boolean030")
boolean31.Type = "Cut"
boolean31.addObjects([body38])
doc.recompute()

boolean32 = body40.newObject("PartDesign::Boolean", "Boolean031")
boolean32.Type = "Cut"
boolean32.addObjects([body36])
doc.recompute()

boolean33 = body40.newObject("PartDesign::Boolean", "Boolean032")
boolean33.Type = "Cut"
boolean33.addObjects([body34])
body41 = doc.addObject("PartDesign::Body", "Body040")
doc.recompute()

body40.Placement = App.Placement(Vector(0, 0, -0.3), App.Rotation(Vector(0, 0, 1), 0))
boolean34 = body41.newObject("PartDesign::Boolean", "Boolean033")
boolean34.Type = "Fuse"
boolean34.addObjects([body40])
body42 = doc.addObject("PartDesign::Body", "Body041")
body42.AllowCompound = True

# Sketch on XY plane
sketch19 = body42.newObject("Sketcher::SketchObject", "Sketch018")
sketch19.AttachmentSupport = (doc.getObject("XY_Plane041"), [""])
sketch19.MapMode = "FlatFace"
sketch19.AttachmentOffset = App.Placement(Vector(0, 0, 2), App.Rotation())
sketch19.addGeometry([
    Part.Circle(Vector(120, 80.020506, 0), Vector(0, 0, 1), 2.9),
    Part.Circle(Vector(120, 45.010253, 0), Vector(0, 0, 1), 2.9),
    Part.Circle(Vector(120, 10, 0), Vector(0, 0, 1), 2.9),
], False)
sketch19.addConstraint([
    Sketcher.Constraint("Equal", 0, 1),
    Sketcher.Constraint("Equal", 1, 2),
    Sketcher.Constraint("Vertical", 0, 3, 1, 3),
    Sketcher.Constraint("Vertical", 1, 3, 2, 3),
    Sketcher.Constraint("Diameter", 0, 5.8),
    Sketcher.Constraint("DistanceX", -1, 1, 0, 3, 120.0),
    Sketcher.Constraint("DistanceY", -1, 1, 2, 3, 10.0),
    Sketcher.Constraint("DistanceY", -1, 1, 0, 3, 80.020506),
    Sketcher.Constraint("DistanceY", -1, 1, 1, 3, 45.010253),
])
sketch19.setExpression("Constraints[4]", "Params.sketch19_diameter")
pad19 = body42.newObject("PartDesign::Pad", "Pad018")
pad19.Profile = sketch19
pad19.setExpression("Length", "Params.pad19_length")
body43 = doc.addObject("PartDesign::Body", "Body042")
body43.AllowCompound = True
doc.recompute()

body42.Placement = App.Placement(Vector(0, 0, -31), App.Rotation(Vector(0, 0, 1), 0))
boolean35 = body43.newObject("PartDesign::Boolean", "Boolean034")
boolean35.Type = "Fuse"
boolean35.addObjects([body42])
body44 = doc.addObject("PartDesign::Body", "Body043")

# Sketch on XY plane
sketch20 = body44.newObject("Sketcher::SketchObject", "Sketch019")
sketch20.AttachmentSupport = (doc.getObject("XY_Plane043"), [""])
sketch20.MapMode = "FlatFace"
add_polygon(sketch20, [(0, 90), (0, 0), (130, 0), (130, 90)])  # lines 0-3
sketch20.addConstraint([
    Sketcher.Constraint("Vertical", 0),
    Sketcher.Constraint("Horizontal", 1),
    Sketcher.Constraint("Vertical", 2),
    Sketcher.Constraint("Horizontal", 3),
    Sketcher.Constraint("Coincident", 0, 2, -1, 1),
    Sketcher.Constraint("DistanceX", 1, 1, 1, 2, 130.0),
    Sketcher.Constraint("DistanceY", 0, 2, 0, 1, 90.0),
])
sketch20.setExpression("Constraints[9]", "Params.sketch20_width")
sketch20.setExpression("Constraints[10]", "Params.sketch20_height")
pad20 = body44.newObject("PartDesign::Pad", "Pad019")
pad20.Profile = sketch20
pad20.setExpression("Length", "Params.pad20_length")
doc.recompute()

boolean36 = body44.newObject("PartDesign::Boolean", "Boolean035")
boolean36.Type = "Cut"
boolean36.addObjects([body43])
body45 = doc.addObject("PartDesign::Body", "Body044")
doc.recompute()

body44.Placement = App.Placement(Vector(-110, 0, 6), App.Rotation(Vector(0, 0, 1), 0))
boolean37 = body45.newObject("PartDesign::Boolean", "Boolean036")
boolean37.Type = "Fuse"
boolean37.addObjects([body44])
doc.recompute()

boolean38 = body45.newObject("PartDesign::Boolean", "Boolean037")
boolean38.Type = "Fuse"
boolean38.addObjects([body41])
doc.recompute()

boolean39 = body45.newObject("PartDesign::Boolean", "Boolean038")
boolean39.Type = "Fuse"
boolean39.addObjects([body32])
doc.recompute()

boolean40 = body45.newObject("PartDesign::Boolean", "Boolean039")
boolean40.Type = "Fuse"
boolean40.addObjects([body27])
doc.recompute()

boolean41 = body45.newObject("PartDesign::Boolean", "Boolean040")
boolean41.Type = "Fuse"
boolean41.addObjects([body22])
doc.recompute()

boolean42 = body45.newObject("PartDesign::Boolean", "Boolean041")
boolean42.Type = "Fuse"
boolean42.addObjects([body16])
doc.recompute()

boolean43 = body45.newObject("PartDesign::Boolean", "Boolean042")
boolean43.Type = "Fuse"
boolean43.addObjects([body10])
doc.recompute()

boolean44 = body45.newObject("PartDesign::Boolean", "Boolean043")
boolean44.Type = "Fuse"
boolean44.addObjects([body5])

doc.recompute()
